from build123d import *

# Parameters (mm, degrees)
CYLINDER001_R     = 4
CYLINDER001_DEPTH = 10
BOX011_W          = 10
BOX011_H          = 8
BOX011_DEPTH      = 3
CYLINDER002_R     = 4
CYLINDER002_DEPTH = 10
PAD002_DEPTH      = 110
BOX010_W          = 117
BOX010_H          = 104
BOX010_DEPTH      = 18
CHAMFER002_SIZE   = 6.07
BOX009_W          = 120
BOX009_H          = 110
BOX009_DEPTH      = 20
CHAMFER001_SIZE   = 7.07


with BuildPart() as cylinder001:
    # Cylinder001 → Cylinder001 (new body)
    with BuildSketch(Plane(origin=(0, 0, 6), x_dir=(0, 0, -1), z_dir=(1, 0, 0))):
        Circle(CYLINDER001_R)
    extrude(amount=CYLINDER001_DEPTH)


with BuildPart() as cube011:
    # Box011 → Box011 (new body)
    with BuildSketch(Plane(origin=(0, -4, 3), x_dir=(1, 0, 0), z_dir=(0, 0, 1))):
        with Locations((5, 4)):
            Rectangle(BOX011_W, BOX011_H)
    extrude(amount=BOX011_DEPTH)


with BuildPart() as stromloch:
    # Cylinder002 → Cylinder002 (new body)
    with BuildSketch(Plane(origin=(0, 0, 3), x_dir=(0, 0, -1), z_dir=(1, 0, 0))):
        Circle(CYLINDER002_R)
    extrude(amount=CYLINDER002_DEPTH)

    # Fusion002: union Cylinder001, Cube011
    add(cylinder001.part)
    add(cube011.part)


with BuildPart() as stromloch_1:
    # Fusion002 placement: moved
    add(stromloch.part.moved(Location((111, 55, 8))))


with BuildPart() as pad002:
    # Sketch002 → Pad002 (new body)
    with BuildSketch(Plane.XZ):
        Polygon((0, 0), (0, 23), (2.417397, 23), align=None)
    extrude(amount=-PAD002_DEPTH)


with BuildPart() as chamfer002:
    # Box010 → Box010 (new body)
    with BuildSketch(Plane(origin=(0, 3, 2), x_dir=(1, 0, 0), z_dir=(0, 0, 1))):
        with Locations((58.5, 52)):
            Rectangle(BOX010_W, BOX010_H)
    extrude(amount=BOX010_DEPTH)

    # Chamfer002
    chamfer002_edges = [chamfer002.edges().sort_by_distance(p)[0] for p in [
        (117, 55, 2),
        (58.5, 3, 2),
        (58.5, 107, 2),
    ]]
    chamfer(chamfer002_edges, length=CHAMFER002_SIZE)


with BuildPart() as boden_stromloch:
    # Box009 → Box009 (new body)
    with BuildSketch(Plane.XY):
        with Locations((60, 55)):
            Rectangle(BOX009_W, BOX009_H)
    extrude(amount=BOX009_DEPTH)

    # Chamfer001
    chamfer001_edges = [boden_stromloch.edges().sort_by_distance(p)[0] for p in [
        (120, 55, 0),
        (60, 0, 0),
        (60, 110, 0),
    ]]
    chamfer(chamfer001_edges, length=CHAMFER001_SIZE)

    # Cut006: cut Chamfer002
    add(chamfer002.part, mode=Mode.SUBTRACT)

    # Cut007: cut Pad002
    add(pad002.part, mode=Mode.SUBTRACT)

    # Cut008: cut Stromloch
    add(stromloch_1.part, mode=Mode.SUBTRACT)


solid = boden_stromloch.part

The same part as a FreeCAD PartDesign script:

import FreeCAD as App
import Part
import Sketcher
from FreeCAD import Vector
Q = App.Units.Quantity


def edges_at(feature, points):
    """Names of the edges that pass closest to the given points."""
    edges = feature.Shape.Edges
    near = lambda p: min(range(len(edges)), key=lambda i: edges[i].distToShape(Part.Vertex(*p))[0])
    return sorted({f"Edge{near(p) + 1}" for p in points})

doc = App.newDocument("Part")
body = doc.addObject("PartDesign::Body", "Body")

# Sketch on YZ plane
sketch1 = doc.addObject("Sketcher::SketchObject", "Sketch")
body.addObject(sketch1)
sketch1.AttachmentSupport = (doc.YZ_Plane, [""])
sketch1.MapMode = "FlatFace"
sketch1.addGeometry(Part.Circle(Vector(0, 6, 0), Vector(0, 0, 1), 4), False)
sketch1.addConstraint([
    Sketcher.Constraint("PointOnObject", 0, 3, -2),
    Sketcher.Constraint("Diameter", 0, 8.0),
    Sketcher.Constraint("DistanceY", -1, 1, 0, 3, 6.0),
])
pad1 = doc.addObject("PartDesign::Pad", "Pad")
body.addObject(pad1)
pad1.Profile = sketch1
pad1.Length = 10
body2 = doc.addObject("PartDesign::Body", "Body001")

# Sketch on XY plane
sketch2 = doc.addObject("Sketcher::SketchObject", "Sketch001")
body2.addObject(sketch2)
sketch2.AttachmentSupport = (doc.getObject("XY_Plane001"), [""])
sketch2.MapMode = "FlatFace"
sketch2.AttachmentOffset = App.Placement(Vector(0, 0, 3), App.Rotation())
sketch2.addGeometry([
    Part.LineSegment(Vector(0, 4, 0), Vector(0, -4, 0)),
    Part.LineSegment(Vector(0, -4, 0), Vector(10, -4, 0)),
    Part.LineSegment(Vector(10, -4, 0), Vector(10, 4, 0)),
    Part.LineSegment(Vector(10, 4, 0), Vector(0, 4, 0)),
], False)
sketch2.addConstraint([
    Sketcher.Constraint("Coincident", 0, 2, 1, 1),
    Sketcher.Constraint("Coincident", 1, 2, 2, 1),
    Sketcher.Constraint("Coincident", 2, 2, 3, 1),
    Sketcher.Constraint("Coincident", 3, 2, 0, 1),
    Sketcher.Constraint("Vertical", 0),
    Sketcher.Constraint("Horizontal", 1),
    Sketcher.Constraint("Vertical", 2),
    Sketcher.Constraint("Horizontal", 3),
    Sketcher.Constraint("Symmetric", 0, 2, 3, 2, -1, 1),
    Sketcher.Constraint("DistanceX", 1, 1, 1, 2, 10.0),
    Sketcher.Constraint("DistanceY", 0, 2, 0, 1, 8.0),
])
pad2 = doc.addObject("PartDesign::Pad", "Pad001")
body2.addObject(pad2)
pad2.Profile = sketch2
pad2.Length = 3
body3 = doc.addObject("PartDesign::Body", "Body002")

# Sketch on YZ plane
sketch3 = doc.addObject("Sketcher::SketchObject", "Sketch002")
body3.addObject(sketch3)
sketch3.AttachmentSupport = (doc.getObject("YZ_Plane002"), [""])
sketch3.MapMode = "FlatFace"
sketch3.addGeometry(Part.Circle(Vector(0, 3, 0), Vector(0, 0, 1), 4), False)
sketch3.addConstraint([
    Sketcher.Constraint("PointOnObject", 0, 3, -2),
    Sketcher.Constraint("Diameter", 0, 8.0),
    Sketcher.Constraint("DistanceY", -1, 1, 0, 3, 3.0),
])
pad3 = doc.addObject("PartDesign::Pad", "Pad002")
body3.addObject(pad3)
pad3.Profile = sketch3
pad3.Length = 10
doc.recompute()

boolean = doc.addObject("PartDesign::Boolean", "Boolean")
body3.addObject(boolean)
boolean.Type = "Fuse"
boolean.addObjects([body])
doc.recompute()

boolean2 = doc.addObject("PartDesign::Boolean", "Boolean001")
body3.addObject(boolean2)
boolean2.Type = "Fuse"
boolean2.addObjects([body2])
body4 = doc.addObject("PartDesign::Body", "Body003")
doc.recompute()

body3.Placement = App.Placement(Vector(111, 55, 8), App.Rotation(Vector(0, 0, 1), 0))
boolean3 = doc.addObject("PartDesign::Boolean", "Boolean002")
body4.addObject(boolean3)
boolean3.Type = "Fuse"
boolean3.addObjects([body3])
body5 = doc.addObject("PartDesign::Body", "Body004")

# Sketch on XZ plane
sketch4 = doc.addObject("Sketcher::SketchObject", "Sketch003")
body5.addObject(sketch4)
sketch4.AttachmentSupport = (doc.getObject("XZ_Plane004"), [""])
sketch4.MapMode = "FlatFace"
sketch4.addGeometry([
    Part.LineSegment(Vector(0, 23, 0), Vector(0, 0, 0)),
    Part.LineSegment(Vector(0, 0, 0), Vector(2.4, 23, 0)),
    Part.LineSegment(Vector(2.4, 23, 0), Vector(0, 23, 0)),
], False)
sketch4.addConstraint([
    Sketcher.Constraint("Coincident", 0, 2, 1, 1),
    Sketcher.Constraint("Coincident", 1, 2, 2, 1),
    Sketcher.Constraint("Coincident", 2, 2, 0, 1),
    Sketcher.Constraint("Vertical", 0),
    Sketcher.Constraint("Horizontal", 2),
    Sketcher.Constraint("Coincident", 0, 2, -1, 1),
    Sketcher.Constraint("DistanceY", 0, 2, 0, 1, 23.0),
    Sketcher.Constraint("Angle", 1, Q("84.000001 deg")),
])
pad4 = doc.addObject("PartDesign::Pad", "Pad003")
body5.addObject(pad4)
pad4.Profile = sketch4
pad4.Length = 110
pad4.Reversed = True
body6 = doc.addObject("PartDesign::Body", "Body005")

# Sketch on XY plane
sketch5 = doc.addObject("Sketcher::SketchObject", "Sketch004")
body6.addObject(sketch5)
sketch5.AttachmentSupport = (doc.getObject("XY_Plane005"), [""])
sketch5.MapMode = "FlatFace"
sketch5.AttachmentOffset = App.Placement(Vector(0, 0, 2), App.Rotation())
sketch5.addGeometry([
    Part.LineSegment(Vector(0, 107, 0), Vector(0, 3, 0)),
    Part.LineSegment(Vector(0, 3, 0), Vector(117, 3, 0)),
    Part.LineSegment(Vector(117, 3, 0), Vector(117, 107, 0)),
    Part.LineSegment(Vector(117, 107, 0), Vector(0, 107, 0)),
], False)
sketch5.addConstraint([
    Sketcher.Constraint("Coincident", 0, 2, 1, 1),
    Sketcher.Constraint("Coincident", 1, 2, 2, 1),
    Sketcher.Constraint("Coincident", 2, 2, 3, 1),
    Sketcher.Constraint("Coincident", 3, 2, 0, 1),
    Sketcher.Constraint("Vertical", 0),
    Sketcher.Constraint("Horizontal", 1),
    Sketcher.Constraint("Vertical", 2),
    Sketcher.Constraint("Horizontal", 3),
    Sketcher.Constraint("PointOnObject", 0, 2, -2),
    Sketcher.Constraint("DistanceX", 1, 1, 1, 2, 117.0),
    Sketcher.Constraint("DistanceY", 0, 2, 0, 1, 104.0),
    Sketcher.Constraint("DistanceY", -1, 1, 0, 2, 3.0),
])
pad5 = doc.addObject("PartDesign::Pad", "Pad004")
body6.addObject(pad5)
pad5.Profile = sketch5
pad5.Length = 18
doc.recompute()

chamfer = doc.addObject("PartDesign::Chamfer", "Chamfer")
body6.addObject(chamfer)
chamfer.Base = (pad5, edges_at(pad5, [(117, 55, 2), (58.5, 3, 2), (58.5, 107, 2)]))
chamfer.Size = 6.07
body7 = doc.addObject("PartDesign::Body", "Body006")

# Sketch on XY plane
sketch6 = doc.addObject("Sketcher::SketchObject", "Sketch005")
body7.addObject(sketch6)
sketch6.AttachmentSupport = (doc.getObject("XY_Plane006"), [""])
sketch6.MapMode = "FlatFace"
sketch6.addGeometry([
    Part.LineSegment(Vector(0, 110, 0), Vector(0, 0, 0)),
    Part.LineSegment(Vector(0, 0, 0), Vector(120, 0, 0)),
    Part.LineSegment(Vector(120, 0, 0), Vector(120, 110, 0)),
    Part.LineSegment(Vector(120, 110, 0), Vector(0, 110, 0)),
], False)
sketch6.addConstraint([
    Sketcher.Constraint("Coincident", 0, 2, 1, 1),
    Sketcher.Constraint("Coincident", 1, 2, 2, 1),
    Sketcher.Constraint("Coincident", 2, 2, 3, 1),
    Sketcher.Constraint("Coincident", 3, 2, 0, 1),
    Sketcher.Constraint("Vertical", 0),
    Sketcher.Constraint("Horizontal", 1),
    Sketcher.Constraint("Vertical", 2),
    Sketcher.Constraint("Horizontal", 3),
    Sketcher.Constraint("Coincident", 0, 2, -1, 1),
    Sketcher.Constraint("DistanceX", 1, 1, 1, 2, 120.0),
    Sketcher.Constraint("DistanceY", 0, 2, 0, 1, 110.0),
])
pad6 = doc.addObject("PartDesign::Pad", "Pad005")
body7.addObject(pad6)
pad6.Profile = sketch6
pad6.Length = 20
doc.recompute()

chamfer2 = doc.addObject("PartDesign::Chamfer", "Chamfer001")
body7.addObject(chamfer2)
chamfer2.Base = (pad6, edges_at(pad6, [(120, 55, 0), (60, 0, 0), (60, 110, 0)]))
chamfer2.Size = 7.07
doc.recompute()

boolean4 = doc.addObject("PartDesign::Boolean", "Boolean003")
body7.addObject(boolean4)
boolean4.Type = "Cut"
boolean4.addObjects([body6])
doc.recompute()

boolean5 = doc.addObject("PartDesign::Boolean", "Boolean004")
body7.addObject(boolean5)
boolean5.Type = "Cut"
boolean5.addObjects([body5])
doc.recompute()

boolean6 = doc.addObject("PartDesign::Boolean", "Boolean005")
body7.addObject(boolean6)
boolean6.Type = "Cut"
boolean6.addObjects([body4])

doc.recompute()
